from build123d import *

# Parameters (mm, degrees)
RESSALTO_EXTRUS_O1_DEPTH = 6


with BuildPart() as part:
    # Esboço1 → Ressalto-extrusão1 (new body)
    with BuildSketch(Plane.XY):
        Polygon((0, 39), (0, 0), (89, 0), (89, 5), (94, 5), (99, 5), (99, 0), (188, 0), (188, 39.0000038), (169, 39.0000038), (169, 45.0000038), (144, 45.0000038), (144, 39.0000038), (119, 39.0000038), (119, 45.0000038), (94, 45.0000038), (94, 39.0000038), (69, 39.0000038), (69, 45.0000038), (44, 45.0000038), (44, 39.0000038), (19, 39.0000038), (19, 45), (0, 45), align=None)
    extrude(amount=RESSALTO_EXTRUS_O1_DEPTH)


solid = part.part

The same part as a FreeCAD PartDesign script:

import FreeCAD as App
import Part
import Sketcher
from FreeCAD import Vector
Q = App.Units.Quantity


def add_polygon(sketch, points):
    """Adds a closed chain of lines whose ends are joined by coincident constraints."""
    first, n = sketch.GeometryCount, len(points)
    for a, b in zip(points, points[1:] + points[:1]):
        sketch.addGeometry(Part.LineSegment(App.Vector(*a, 0), App.Vector(*b, 0)), False)
    for i in range(n):
        sketch.addConstraint(Sketcher.Constraint("Coincident", first + i, 2, first + (i + 1) % n, 1))

doc = App.newDocument("Part")
body = doc.addObject("PartDesign::Body", "Body")

# Sketch on XY plane
sketch1 = body.newObject("Sketcher::SketchObject", "Sketch")
sketch1.AttachmentSupport = (doc.getObject("XY_Plane"), [""])
sketch1.MapMode = "FlatFace"
add_polygon(sketch1, [(0, 0), (89, 0), (89, 5), (99, 5), (99, 0), (188, 0), (188, 39.000004), (169, 39.000004), (169, 45.000004), (144, 45.000004), (144, 39.000004), (119, 39.000004), (119, 45.000004), (94, 45.000004), (94, 39.000004), (69, 39.000004), (69, 45.000004), (44, 45.000004), (44, 39.000004), (19, 39.000004), (19, 45), (0, 45)])  # lines 0-21
sketch1.addConstraint([
    Sketcher.Constraint("Horizontal", 0),
    Sketcher.Constraint("Vertical", 1),
    Sketcher.Constraint("Horizontal", 2),
    Sketcher.Constraint("Vertical", 3),
    Sketcher.Constraint("Horizontal", 4),
    Sketcher.Constraint("Vertical", 5),
    Sketcher.Constraint("Horizontal", 6),
    Sketcher.Constraint("Vertical", 7),
    Sketcher.Constraint("Horizontal", 8),
    Sketcher.Constraint("Vertical", 9),
    Sketcher.Constraint("Horizontal", 10),
    Sketcher.Constraint("Vertical", 11),
    Sketcher.Constraint("Horizontal", 12),
    Sketcher.Constraint("Vertical", 13),
    Sketcher.Constraint("Horizontal", 14),
    Sketcher.Constraint("Vertical", 15),
    Sketcher.Constraint("Horizontal", 16),
    Sketcher.Constraint("Vertical", 17),
    Sketcher.Constraint("Horizontal", 18),
    Sketcher.Constraint("Vertical", 19),
    Sketcher.Constraint("Horizontal", 20),
    Sketcher.Constraint("Vertical", 21),
    Sketcher.Constraint("Coincident", 21, 2, -1, 1),
    Sketcher.Constraint("PointOnObject", 3, 2, -1),
    Sketcher.Constraint("Horizontal", 6, 2, 9, 2),
    Sketcher.Constraint("Horizontal", 8, 2, 11, 2),
    Sketcher.Constraint("Horizontal", 10, 2, 13, 2),
    Sketcher.Constraint("Horizontal", 12, 2, 15, 2),
    Sketcher.Constraint("Horizontal", 14, 2, 17, 2),
    Sketcher.Constraint("Equal", 0, 4),
    Sketcher.Constraint("Equal", 8, 10),
    Sketcher.Constraint("Equal", 10, 12),
    Sketcher.Constraint("Equal", 12, 14),
    Sketcher.Constraint("Equal", 14, 16),
    Sketcher.Constraint("Equal", 16, 18),
    Sketcher.Constraint("Equal", 6, 20),
    Sketcher.Constraint("DistanceX", 0, 1, 0, 2, Q("89 mm")),
    Sketcher.Constraint("DistanceX", 2, 1, 2, 2, Q("10 mm")),
    Sketcher.Constraint("DistanceX", 6, 2, 6, 1, Q("19 mm")),
    Sketcher.Constraint("DistanceY", 1, 1, 1, 2, Q("5 mm")),
    Sketcher.Constraint("DistanceY", 7, 1, 7, 2, Q("6 mm")),
    Sketcher.Constraint("DistanceY", 21, 2, 21, 1, Q("45 mm")),
    Sketcher.Constraint("DistanceY", 5, 1, 5, 2, Q("39.000004 mm")),
])
pad1 = body.newObject("PartDesign::Pad", "Pad")
pad1.Profile = sketch1
pad1.Length = 6

doc.recompute()
